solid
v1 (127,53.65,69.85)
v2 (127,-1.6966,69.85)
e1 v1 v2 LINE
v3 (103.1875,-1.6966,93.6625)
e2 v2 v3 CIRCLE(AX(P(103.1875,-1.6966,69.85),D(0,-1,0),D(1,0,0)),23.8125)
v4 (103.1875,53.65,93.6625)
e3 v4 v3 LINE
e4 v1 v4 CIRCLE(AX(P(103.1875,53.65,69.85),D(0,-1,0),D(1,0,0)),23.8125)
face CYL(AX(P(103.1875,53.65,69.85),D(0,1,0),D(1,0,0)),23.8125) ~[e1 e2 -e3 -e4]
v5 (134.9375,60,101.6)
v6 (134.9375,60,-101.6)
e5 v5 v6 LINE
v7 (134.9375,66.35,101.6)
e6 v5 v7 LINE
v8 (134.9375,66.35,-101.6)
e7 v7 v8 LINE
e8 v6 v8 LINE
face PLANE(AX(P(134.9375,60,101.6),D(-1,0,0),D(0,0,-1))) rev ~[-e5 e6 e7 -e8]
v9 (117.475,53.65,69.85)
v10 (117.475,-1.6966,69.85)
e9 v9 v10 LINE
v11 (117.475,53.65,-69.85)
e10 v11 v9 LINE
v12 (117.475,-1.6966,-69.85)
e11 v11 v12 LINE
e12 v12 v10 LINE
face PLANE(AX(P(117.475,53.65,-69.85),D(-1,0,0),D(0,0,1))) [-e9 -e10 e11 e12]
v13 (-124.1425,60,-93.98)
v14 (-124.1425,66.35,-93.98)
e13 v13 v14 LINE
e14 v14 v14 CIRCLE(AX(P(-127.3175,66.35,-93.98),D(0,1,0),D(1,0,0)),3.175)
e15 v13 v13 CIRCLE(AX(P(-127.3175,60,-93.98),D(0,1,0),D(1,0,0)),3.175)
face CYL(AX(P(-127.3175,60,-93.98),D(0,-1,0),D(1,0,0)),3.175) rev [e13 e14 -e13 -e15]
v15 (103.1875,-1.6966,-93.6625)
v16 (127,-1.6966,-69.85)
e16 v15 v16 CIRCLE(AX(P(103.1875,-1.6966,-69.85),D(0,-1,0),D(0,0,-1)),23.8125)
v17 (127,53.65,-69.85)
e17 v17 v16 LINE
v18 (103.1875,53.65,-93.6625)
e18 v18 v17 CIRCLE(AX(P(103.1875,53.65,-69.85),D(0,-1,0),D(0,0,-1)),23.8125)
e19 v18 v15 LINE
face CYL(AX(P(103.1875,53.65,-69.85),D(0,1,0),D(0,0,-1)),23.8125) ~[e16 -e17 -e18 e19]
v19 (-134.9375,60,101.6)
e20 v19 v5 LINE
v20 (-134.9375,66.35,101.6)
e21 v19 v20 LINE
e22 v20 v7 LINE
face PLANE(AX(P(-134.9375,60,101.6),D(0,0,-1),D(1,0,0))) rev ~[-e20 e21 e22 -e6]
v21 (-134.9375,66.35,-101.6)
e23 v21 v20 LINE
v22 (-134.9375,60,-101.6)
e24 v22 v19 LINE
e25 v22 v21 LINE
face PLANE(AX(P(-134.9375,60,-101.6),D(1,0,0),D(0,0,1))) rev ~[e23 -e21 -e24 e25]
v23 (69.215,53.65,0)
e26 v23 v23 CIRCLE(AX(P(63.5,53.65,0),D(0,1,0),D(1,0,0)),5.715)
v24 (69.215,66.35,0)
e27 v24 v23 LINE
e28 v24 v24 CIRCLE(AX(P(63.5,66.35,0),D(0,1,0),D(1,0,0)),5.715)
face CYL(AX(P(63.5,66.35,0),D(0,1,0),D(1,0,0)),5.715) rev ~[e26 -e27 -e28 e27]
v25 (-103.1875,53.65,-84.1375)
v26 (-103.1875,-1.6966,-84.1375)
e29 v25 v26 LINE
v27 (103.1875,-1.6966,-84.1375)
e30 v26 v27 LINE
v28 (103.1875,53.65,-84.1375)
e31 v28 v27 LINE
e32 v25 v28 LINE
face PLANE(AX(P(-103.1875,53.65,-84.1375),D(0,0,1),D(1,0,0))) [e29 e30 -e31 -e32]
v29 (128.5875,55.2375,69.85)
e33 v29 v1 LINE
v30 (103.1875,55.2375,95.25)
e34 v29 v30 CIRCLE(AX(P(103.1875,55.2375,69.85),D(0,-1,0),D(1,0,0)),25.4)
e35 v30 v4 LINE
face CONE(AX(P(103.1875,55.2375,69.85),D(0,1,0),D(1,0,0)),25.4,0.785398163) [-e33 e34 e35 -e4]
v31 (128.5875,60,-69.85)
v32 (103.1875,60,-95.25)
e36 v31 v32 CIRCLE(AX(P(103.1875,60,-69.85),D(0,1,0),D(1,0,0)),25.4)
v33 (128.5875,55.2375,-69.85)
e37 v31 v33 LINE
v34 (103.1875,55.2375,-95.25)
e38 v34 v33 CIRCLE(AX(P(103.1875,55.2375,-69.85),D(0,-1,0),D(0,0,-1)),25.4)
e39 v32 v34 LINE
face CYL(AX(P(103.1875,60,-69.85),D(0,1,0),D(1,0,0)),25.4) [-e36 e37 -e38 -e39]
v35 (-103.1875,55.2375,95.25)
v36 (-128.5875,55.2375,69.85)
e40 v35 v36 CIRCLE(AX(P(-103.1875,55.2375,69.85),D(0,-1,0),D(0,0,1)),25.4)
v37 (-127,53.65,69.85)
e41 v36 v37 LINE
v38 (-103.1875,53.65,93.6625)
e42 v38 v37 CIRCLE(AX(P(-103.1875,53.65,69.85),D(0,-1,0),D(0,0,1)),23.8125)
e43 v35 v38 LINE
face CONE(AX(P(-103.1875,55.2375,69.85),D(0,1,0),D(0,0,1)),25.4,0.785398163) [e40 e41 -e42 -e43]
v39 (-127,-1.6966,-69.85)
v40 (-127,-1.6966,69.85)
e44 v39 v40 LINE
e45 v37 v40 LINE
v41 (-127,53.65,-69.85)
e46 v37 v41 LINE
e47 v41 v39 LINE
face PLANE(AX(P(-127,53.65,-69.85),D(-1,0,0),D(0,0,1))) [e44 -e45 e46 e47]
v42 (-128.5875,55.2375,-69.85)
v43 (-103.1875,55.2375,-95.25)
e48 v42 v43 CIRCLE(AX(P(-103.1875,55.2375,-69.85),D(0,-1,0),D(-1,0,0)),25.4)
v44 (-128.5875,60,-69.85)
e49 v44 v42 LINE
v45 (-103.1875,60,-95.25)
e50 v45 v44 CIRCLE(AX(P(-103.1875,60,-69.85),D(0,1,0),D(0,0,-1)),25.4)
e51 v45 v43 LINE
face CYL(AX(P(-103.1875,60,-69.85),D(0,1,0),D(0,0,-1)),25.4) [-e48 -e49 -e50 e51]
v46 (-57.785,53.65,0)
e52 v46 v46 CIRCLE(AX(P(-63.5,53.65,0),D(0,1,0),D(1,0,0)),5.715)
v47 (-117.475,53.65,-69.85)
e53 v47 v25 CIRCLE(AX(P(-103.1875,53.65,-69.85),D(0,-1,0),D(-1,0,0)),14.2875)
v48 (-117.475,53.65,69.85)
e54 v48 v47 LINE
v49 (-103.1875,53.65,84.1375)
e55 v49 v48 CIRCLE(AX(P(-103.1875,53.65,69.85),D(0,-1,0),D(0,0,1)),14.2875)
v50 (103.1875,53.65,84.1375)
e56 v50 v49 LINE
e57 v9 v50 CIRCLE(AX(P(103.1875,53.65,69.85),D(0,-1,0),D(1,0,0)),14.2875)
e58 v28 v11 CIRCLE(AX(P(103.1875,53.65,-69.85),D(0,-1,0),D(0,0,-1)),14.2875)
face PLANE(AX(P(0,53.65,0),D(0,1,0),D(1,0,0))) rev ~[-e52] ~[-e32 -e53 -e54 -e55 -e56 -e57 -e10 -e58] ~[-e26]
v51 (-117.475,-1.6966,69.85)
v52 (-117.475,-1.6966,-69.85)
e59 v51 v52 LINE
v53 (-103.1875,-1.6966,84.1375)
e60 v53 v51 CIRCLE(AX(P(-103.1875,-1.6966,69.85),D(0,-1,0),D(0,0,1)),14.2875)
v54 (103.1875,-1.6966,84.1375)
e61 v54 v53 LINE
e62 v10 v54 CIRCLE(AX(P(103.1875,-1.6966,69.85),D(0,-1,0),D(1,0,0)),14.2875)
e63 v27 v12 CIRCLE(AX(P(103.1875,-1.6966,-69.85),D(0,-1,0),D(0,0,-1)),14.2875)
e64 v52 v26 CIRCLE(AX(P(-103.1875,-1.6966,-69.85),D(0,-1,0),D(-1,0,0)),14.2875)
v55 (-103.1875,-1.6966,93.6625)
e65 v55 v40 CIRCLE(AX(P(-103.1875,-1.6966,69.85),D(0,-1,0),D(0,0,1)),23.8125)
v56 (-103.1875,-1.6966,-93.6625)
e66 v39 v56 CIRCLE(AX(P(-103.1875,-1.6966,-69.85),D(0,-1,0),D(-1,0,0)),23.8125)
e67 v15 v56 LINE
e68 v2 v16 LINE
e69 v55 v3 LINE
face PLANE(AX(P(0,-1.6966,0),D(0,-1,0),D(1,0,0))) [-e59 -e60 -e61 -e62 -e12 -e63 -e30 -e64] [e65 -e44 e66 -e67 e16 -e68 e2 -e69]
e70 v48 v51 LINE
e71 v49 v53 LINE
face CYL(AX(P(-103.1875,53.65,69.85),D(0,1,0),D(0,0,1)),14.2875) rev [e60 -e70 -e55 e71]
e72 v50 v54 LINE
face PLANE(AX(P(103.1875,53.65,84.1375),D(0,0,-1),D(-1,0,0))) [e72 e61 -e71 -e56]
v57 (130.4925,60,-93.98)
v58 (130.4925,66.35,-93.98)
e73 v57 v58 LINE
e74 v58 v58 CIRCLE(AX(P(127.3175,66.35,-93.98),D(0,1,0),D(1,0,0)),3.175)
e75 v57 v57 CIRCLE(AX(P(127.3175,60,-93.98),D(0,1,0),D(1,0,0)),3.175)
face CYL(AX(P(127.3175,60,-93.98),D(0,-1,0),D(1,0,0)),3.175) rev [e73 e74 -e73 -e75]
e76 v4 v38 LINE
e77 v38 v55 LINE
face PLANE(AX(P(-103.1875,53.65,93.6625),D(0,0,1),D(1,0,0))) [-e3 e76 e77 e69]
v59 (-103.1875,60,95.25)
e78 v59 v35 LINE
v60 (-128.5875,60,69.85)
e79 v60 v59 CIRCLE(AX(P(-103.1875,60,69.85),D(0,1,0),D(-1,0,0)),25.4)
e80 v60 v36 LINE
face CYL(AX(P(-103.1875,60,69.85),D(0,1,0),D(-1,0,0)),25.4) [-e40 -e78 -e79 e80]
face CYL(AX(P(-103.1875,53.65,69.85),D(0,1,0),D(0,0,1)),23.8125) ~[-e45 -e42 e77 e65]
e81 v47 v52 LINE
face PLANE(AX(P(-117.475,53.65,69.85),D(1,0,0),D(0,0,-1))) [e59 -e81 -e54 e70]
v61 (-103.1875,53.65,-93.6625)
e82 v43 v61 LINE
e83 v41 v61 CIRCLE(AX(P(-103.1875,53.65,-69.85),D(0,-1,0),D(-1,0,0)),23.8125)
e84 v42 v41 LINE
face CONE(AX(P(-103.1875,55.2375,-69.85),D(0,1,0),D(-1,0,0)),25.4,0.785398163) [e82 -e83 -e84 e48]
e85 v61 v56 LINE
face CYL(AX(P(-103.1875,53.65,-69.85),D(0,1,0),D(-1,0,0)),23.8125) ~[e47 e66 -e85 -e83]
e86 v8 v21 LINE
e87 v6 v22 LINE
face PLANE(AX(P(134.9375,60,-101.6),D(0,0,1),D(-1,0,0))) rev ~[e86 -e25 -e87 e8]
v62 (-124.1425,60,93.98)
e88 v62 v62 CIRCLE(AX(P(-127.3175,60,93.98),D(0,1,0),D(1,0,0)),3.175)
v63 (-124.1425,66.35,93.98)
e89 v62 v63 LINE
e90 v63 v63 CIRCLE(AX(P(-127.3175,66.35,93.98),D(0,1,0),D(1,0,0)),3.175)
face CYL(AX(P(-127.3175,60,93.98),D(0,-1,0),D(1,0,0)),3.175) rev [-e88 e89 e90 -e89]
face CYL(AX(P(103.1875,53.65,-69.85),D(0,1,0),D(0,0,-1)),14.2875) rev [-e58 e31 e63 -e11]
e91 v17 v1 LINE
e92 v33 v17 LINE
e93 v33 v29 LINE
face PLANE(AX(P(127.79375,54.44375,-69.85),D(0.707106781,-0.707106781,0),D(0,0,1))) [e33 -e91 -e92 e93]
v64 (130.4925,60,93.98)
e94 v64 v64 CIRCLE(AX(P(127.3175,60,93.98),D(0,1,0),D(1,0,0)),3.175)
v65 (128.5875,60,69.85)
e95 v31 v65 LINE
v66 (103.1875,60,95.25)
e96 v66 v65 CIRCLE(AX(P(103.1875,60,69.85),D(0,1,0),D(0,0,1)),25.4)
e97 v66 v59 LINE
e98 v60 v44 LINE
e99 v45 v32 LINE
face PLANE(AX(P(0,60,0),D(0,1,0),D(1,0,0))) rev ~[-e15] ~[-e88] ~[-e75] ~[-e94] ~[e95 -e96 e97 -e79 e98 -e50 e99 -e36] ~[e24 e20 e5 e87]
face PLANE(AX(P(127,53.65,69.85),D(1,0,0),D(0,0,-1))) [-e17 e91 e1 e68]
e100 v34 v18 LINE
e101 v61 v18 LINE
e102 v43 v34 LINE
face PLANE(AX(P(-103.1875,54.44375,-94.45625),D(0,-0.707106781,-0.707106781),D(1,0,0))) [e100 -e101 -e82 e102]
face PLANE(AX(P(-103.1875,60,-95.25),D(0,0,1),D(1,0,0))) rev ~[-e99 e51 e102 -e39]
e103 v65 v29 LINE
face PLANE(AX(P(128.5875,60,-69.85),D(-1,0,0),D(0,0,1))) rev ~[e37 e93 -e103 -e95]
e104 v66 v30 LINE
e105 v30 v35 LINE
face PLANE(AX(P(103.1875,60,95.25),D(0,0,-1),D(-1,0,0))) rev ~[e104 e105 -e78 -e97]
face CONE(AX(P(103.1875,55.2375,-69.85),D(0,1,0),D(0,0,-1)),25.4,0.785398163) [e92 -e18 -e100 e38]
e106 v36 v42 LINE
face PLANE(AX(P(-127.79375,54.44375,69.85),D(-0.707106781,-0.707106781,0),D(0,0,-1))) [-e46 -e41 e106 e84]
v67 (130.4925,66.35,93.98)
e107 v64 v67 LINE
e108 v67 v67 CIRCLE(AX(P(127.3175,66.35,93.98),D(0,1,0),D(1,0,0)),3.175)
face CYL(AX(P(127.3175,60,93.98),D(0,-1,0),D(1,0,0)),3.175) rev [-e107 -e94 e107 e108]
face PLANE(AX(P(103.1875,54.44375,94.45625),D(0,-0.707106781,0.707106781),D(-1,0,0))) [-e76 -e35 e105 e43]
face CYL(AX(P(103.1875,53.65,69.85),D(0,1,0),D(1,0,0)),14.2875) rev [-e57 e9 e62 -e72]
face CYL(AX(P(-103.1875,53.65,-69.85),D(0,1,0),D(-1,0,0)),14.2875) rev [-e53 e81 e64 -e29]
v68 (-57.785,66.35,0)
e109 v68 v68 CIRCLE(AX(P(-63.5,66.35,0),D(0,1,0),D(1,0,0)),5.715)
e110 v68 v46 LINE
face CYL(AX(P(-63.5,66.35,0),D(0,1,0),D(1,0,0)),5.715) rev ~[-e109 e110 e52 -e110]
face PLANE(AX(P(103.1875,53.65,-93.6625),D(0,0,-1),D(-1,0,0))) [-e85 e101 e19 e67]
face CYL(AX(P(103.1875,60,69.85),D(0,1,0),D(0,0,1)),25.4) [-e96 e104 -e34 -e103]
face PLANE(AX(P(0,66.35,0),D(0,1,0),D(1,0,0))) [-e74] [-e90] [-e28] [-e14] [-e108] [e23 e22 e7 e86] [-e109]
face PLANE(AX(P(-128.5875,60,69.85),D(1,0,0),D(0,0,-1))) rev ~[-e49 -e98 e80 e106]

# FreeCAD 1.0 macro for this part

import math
import FreeCAD as App
import Part
import Sketcher
Q = App.Units.Quantity


def edges_at(feature, points):
    """Names of the edges that pass closest to the given points."""
    edges = feature.Shape.Edges
    near = lambda p: min(range(len(edges)), key=lambda i: edges[i].distToShape(Part.Vertex(*p))[0])
    return sorted({f"Edge{near(p) + 1}" for p in points})


def add_polygon(sketch, points):
    """Adds a closed chain of lines whose ends are joined by coincident constraints."""
    first, n = sketch.GeometryCount, len(points)
    for a, b in zip(points, points[1:] + points[:1]):
        sketch.addGeometry(Part.LineSegment(App.Vector(*a, 0), App.Vector(*b, 0)), False)
    for i in range(n):
        sketch.addConstraint(Sketcher.Constraint("Coincident", first + i, 2, first + (i + 1) % n, 1))

doc = App.newDocument("Part")
body = doc.addObject("PartDesign::Body", "Body")

sketch1 = body.newObject("Sketcher::SketchObject", "Sketch")
sketch1.AttachmentSupport = (doc.getObject("XZ_Plane"), [""])
sketch1.MapMode = "FlatFace"
add_polygon(sketch1, [(134.9375, -101.6), (-134.9375, -101.6), (-134.9375, 101.6), (134.9375, 101.6)])
add_polygon(sketch1, [(128.5875, -95.25), (128.5875, 95.25), (-128.5875, 95.25), (-128.5875, -95.25)])
sketch1.addConstraint([
    Sketcher.Constraint("Horizontal", 0),
    Sketcher.Constraint("Vertical", 1),
    Sketcher.Constraint("Horizontal", 2),
    Sketcher.Constraint("Vertical", 3),
    Sketcher.Constraint("Vertical", 4),
    Sketcher.Constraint("Horizontal", 5),
    Sketcher.Constraint("Vertical", 6),
    Sketcher.Constraint("Horizontal", 7),
    Sketcher.Constraint("Symmetric", 0, 2, 2, 2, -1, 1),
    Sketcher.Constraint("Symmetric", 4, 2, 6, 2, -1, 1),
    Sketcher.Constraint("DistanceY", 1, 1, 1, 2, Q("8 in")),
    Sketcher.Constraint("DistanceX", 4, 2, 2, 2, Q("0.25 in")),
    Sketcher.Constraint("DistanceY", 4, 2, 2, 2, Q("0.25 in")),
    Sketcher.Constraint("DistanceX", 0, 2, 0, 1, Q("10.625 in")),
])
pad1 = body.newObject("PartDesign::Pad", "Pad")
pad1.Profile = sketch1
pad1.Length = Q("2.3622047 in")
pad1.Reversed = True

sketch2 = body.newObject("Sketcher::SketchObject", "Sketch001")
sketch2.AttachmentSupport = (doc.getObject("XZ_Plane"), [""])
sketch2.MapMode = "FlatFace"
add_polygon(sketch2, [(134.9375, -101.6), (-134.9375, -101.6), (-134.9375, 101.6), (134.9375, 101.6)])
sketch2.addConstraint([
    Sketcher.Constraint("Horizontal", 0),
    Sketcher.Constraint("Vertical", 1),
    Sketcher.Constraint("Horizontal", 2),
    Sketcher.Constraint("Vertical", 3),
    Sketcher.Constraint("Symmetric", 0, 2, 2, 2, -1, 1),
    Sketcher.Constraint("DistanceY", 1, 1, 1, 2, Q("8 in")),
    Sketcher.Constraint("DistanceX", 0, 2, 0, 1, Q("10.625 in")),
])
pad2 = body.newObject("PartDesign::Pad", "Pad001")
pad2.Profile = sketch2
pad2.Length = Q("0.6 in")
doc.recompute()

fillet = body.newObject("PartDesign::Fillet", "Fillet")
fillet.Base = (pad2, edges_at(pad2, [
    (128.588, 30, 95.25),
    (-128.588, 30, 95.25),
    (-128.588, 30, -95.25),
    (128.588, 30, -95.25),
]))
fillet.Radius = Q("1 in")

sketch3 = body.newObject("Sketcher::SketchObject", "Sketch002")
sketch3.AttachmentSupport = (doc.getObject("XZ_Plane"), [""])
sketch3.MapMode = "FlatFace"
sketch3.addGeometry(Part.Circle(App.Vector(0, 0, 0), App.Vector(0, 0, 1), 5.715), False)
sketch3.addConstraint([
    Sketcher.Constraint("Coincident", 0, 3, -1, 1),
    Sketcher.Constraint("Diameter", 0, Q("0.45 in")),
])
pocket1 = body.newObject("PartDesign::Pocket", "Pocket")
pocket1.Profile = sketch3
pocket1.Type = "ThroughAll"
pocket1.Reversed = True

sketch4 = body.newObject("Sketcher::SketchObject", "Sketch003")
sketch4.AttachmentSupport = (doc.getObject("XZ_Plane"), [""])
sketch4.MapMode = "FlatFace"
sketch4.addGeometry([
    Part.LineSegment(App.Vector(-28.575, 88.9, 0), App.Vector(28.575, 88.9, 0)),
    Part.ArcOfCircle(Part.Circle(App.Vector(28.575, 0, 0), App.Vector(0, 0, 1), 88.9), math.radians(-90), math.radians(90)),
    Part.LineSegment(App.Vector(28.575, -88.9, 0), App.Vector(-28.575, -88.9, 0)),
    Part.ArcOfCircle(Part.Circle(App.Vector(-28.575, 0, 0), App.Vector(0, 0, 1), 88.9), math.radians(90), math.radians(270)),
    Part.LineSegment(App.Vector(-28.575, -76.2, 0), App.Vector(28.575, -76.2, 0)),
    Part.ArcOfCircle(Part.Circle(App.Vector(28.575, 0, 0), App.Vector(0, 0, 1), 76.2), math.radians(-90), math.radians(90)),
    Part.LineSegment(App.Vector(28.575, 76.2, 0), App.Vector(-28.575, 76.2, 0)),
    Part.ArcOfCircle(Part.Circle(App.Vector(-28.575, 0, 0), App.Vector(0, 0, 1), 76.2), math.radians(90), math.radians(270)),
    Part.LineSegment(App.Vector(28.575, -63.5, 0), App.Vector(-28.575, -63.5, 0)),
    Part.ArcOfCircle(Part.Circle(App.Vector(-28.575, 0, 0), App.Vector(0, 0, 1), 63.5), math.radians(90), math.radians(270)),
    Part.LineSegment(App.Vector(-28.575, 63.5, 0), App.Vector(28.575, 63.5, 0)),
    Part.ArcOfCircle(Part.Circle(App.Vector(28.575, 0, 0), App.Vector(0, 0, 1), 63.5), math.radians(-90), math.radians(90)),
    Part.LineSegment(App.Vector(-28.575, -50.8, 0), App.Vector(28.575, -50.8, 0)),
    Part.ArcOfCircle(Part.Circle(App.Vector(28.575, 0, 0), App.Vector(0, 0, 1), 50.8), math.radians(-90), math.radians(90)),
    Part.LineSegment(App.Vector(28.575, 50.8, 0), App.Vector(-28.575, 50.8, 0)),
    Part.ArcOfCircle(Part.Circle(App.Vector(-28.575, 0, 0), App.Vector(0, 0, 1), 50.8), math.radians(90), math.radians(270)),
    Part.LineSegment(App.Vector(28.575, -38.1, 0), App.Vector(-28.575, -38.1, 0)),
    Part.ArcOfCircle(Part.Circle(App.Vector(-28.575, 0, 0), App.Vector(0, 0, 1), 38.1), math.radians(90), math.radians(270)),
    Part.LineSegment(App.Vector(-28.575, 38.1, 0), App.Vector(28.575, 38.1, 0)),
    Part.ArcOfCircle(Part.Circle(App.Vector(28.575, 0, 0), App.Vector(0, 0, 1), 38.1), math.radians(-90), math.radians(90)),
    Part.LineSegment(App.Vector(-28.575, -25.4, 0), App.Vector(28.575, -25.4, 0)),
    Part.ArcOfCircle(Part.Circle(App.Vector(28.575, 0, 0), App.Vector(0, 0, 1), 25.4), math.radians(-90), math.radians(90)),
    Part.LineSegment(App.Vector(28.575, 25.4, 0), App.Vector(-28.575, 25.4, 0)),
    Part.ArcOfCircle(Part.Circle(App.Vector(-28.575, 0, 0), App.Vector(0, 0, 1), 25.4), math.radians(90), math.radians(270)),
    Part.LineSegment(App.Vector(28.575, -12.7, 0), App.Vector(-28.575, -12.7, 0)),
    Part.ArcOfCircle(Part.Circle(App.Vector(-28.575, 0, 0), App.Vector(0, 0, 1), 12.7), math.radians(90), math.radians(270)),
    Part.LineSegment(App.Vector(-28.575, 12.7, 0), App.Vector(28.575, 12.7, 0)),
    Part.ArcOfCircle(Part.Circle(App.Vector(28.575, 0, 0), App.Vector(0, 0, 1), 12.7), math.radians(-90), math.radians(90)),
    Part.Circle(App.Vector(0, 0, 0), App.Vector(0, 0, 1), 5.715),
], False)
sketch4.addConstraint([
    Sketcher.Constraint("Tangent", 0, 2, 1, 2),
    Sketcher.Constraint("Tangent", 1, 1, 2, 1),
    Sketcher.Constraint("Tangent", 2, 2, 3, 2),
    Sketcher.Constraint("Tangent", 3, 1, 0, 1),
    Sketcher.Constraint("Tangent", 4, 2, 5, 1),
    Sketcher.Constraint("Tangent", 5, 2, 6, 1),
    Sketcher.Constraint("Tangent", 6, 2, 7, 1),
    Sketcher.Constraint("Tangent", 7, 2, 4, 1),
    Sketcher.Constraint("Tangent", 8, 2, 9, 2),
    Sketcher.Constraint("Tangent", 9, 1, 10, 1),
    Sketcher.Constraint("Tangent", 10, 2, 11, 2),
    Sketcher.Constraint("Tangent", 11, 1, 8, 1),
    Sketcher.Constraint("Tangent", 12, 2, 13, 1),
    Sketcher.Constraint("Tangent", 13, 2, 14, 1),
    Sketcher.Constraint("Tangent", 14, 2, 15, 1),
    Sketcher.Constraint("Tangent", 15, 2, 12, 1),
    Sketcher.Constraint("Tangent", 16, 2, 17, 2),
    Sketcher.Constraint("Tangent", 17, 1, 18, 1),
    Sketcher.Constraint("Tangent", 18, 2, 19, 2),
    Sketcher.Constraint("Tangent", 19, 1, 16, 1),
    Sketcher.Constraint("Tangent", 20, 2, 21, 1),
    Sketcher.Constraint("Tangent", 21, 2, 22, 1),
    Sketcher.Constraint("Tangent", 22, 2, 23, 1),
    Sketcher.Constraint("Tangent", 23, 2, 20, 1),
    Sketcher.Constraint("Tangent", 24, 2, 25, 2),
    Sketcher.Constraint("Tangent", 25, 1, 26, 1),
    Sketcher.Constraint("Tangent", 26, 2, 27, 2),
    Sketcher.Constraint("Tangent", 27, 1, 24, 1),
    Sketcher.Constraint("Horizontal", 0),
    Sketcher.Constraint("Horizontal", 2),
    Sketcher.Constraint("Horizontal", 4),
    Sketcher.Constraint("Horizontal", 6),
    Sketcher.Constraint("Horizontal", 8),
    Sketcher.Constraint("Horizontal", 10),
    Sketcher.Constraint("Horizontal", 12),
    Sketcher.Constraint("Horizontal", 14),
    Sketcher.Constraint("Horizontal", 16),
    Sketcher.Constraint("Horizontal", 18),
    Sketcher.Constraint("Horizontal", 20),
    Sketcher.Constraint("Horizontal", 22),
    Sketcher.Constraint("Horizontal", 24),
    Sketcher.Constraint("Horizontal", 26),
    Sketcher.Constraint("Coincident", 28, 3, -1, 1),
    Sketcher.Constraint("Coincident", 5, 3, 1, 3),
    Sketcher.Constraint("Coincident", 9, 3, 3, 3),
    Sketcher.Constraint("Coincident", 13, 3, 1, 3),
    Sketcher.Constraint("Coincident", 17, 3, 3, 3),
    Sketcher.Constraint("Coincident", 21, 3, 1, 3),
    Sketcher.Constraint("Coincident", 25, 3, 3, 3),
    Sketcher.Constraint("Symmetric", 1, 3, 3, 3, -1, 1),
    Sketcher.Constraint("Vertical", 27, 3, 0, 2),
    Sketcher.Constraint("Vertical", 3, 1, 6, 2),
    Sketcher.Constraint("Vertical", 5, 2, 10, 2),
    Sketcher.Constraint("Vertical", 9, 1, 14, 2),
    Sketcher.Constraint("Vertical", 13, 2, 18, 2),
    Sketcher.Constraint("Vertical", 17, 1, 22, 2),
    Sketcher.Constraint("Radius", 1, Q("3.5 in")),
    Sketcher.Constraint("Radius", 25, Q("0.5 in")),
    Sketcher.Constraint("Diameter", 28, Q("0.45 in")),
    Sketcher.Constraint("Radius", 5, Q("3 in")),
    Sketcher.Constraint("Radius", 13, Q("2 in")),
    Sketcher.Constraint("Radius", 21, Q("1 in")),
    Sketcher.Constraint("DistanceX", 0, 1, 0, 2, Q("2.25 in")),
    Sketcher.Constraint("Radius", 9, Q("2.5 in")),
    Sketcher.Constraint("Radius", 17, Q("1.5 in")),
])
pocket2 = body.newObject("PartDesign::Pocket", "Pocket001")
pocket2.Profile = sketch4
pocket2.Length = Q("0.125 in")
pocket2.Reversed = True

sketch5 = body.newObject("Sketcher::SketchObject", "Sketch004")
sketch5.AttachmentSupport = (doc.getObject("XZ_Plane"), [""])
sketch5.MapMode = "FlatFace"
sketch5.addGeometry([
    Part.LineSegment(App.Vector(12.7, 23.933074, 0), App.Vector(96.0683, 80.367, 0)),
    Part.ArcOfCircle(Part.Circle(App.Vector(103.1875, 69.85, 0), App.Vector(0, 0, 1), 12.700012), math.radians(-55.905022), math.radians(124.094978)),
    Part.LineSegment(App.Vector(110.3067, 59.333, 0), App.Vector(22.655677, 0, 0)),
    Part.LineSegment(App.Vector(22.655677, 0, 0), App.Vector(110.3067, -59.333, 0)),
    Part.ArcOfCircle(Part.Circle(App.Vector(103.1875, -69.85, 0), App.Vector(0, 0, 1), 12.700012), math.radians(-124.094978), math.radians(55.905022)),
    Part.LineSegment(App.Vector(96.0683, -80.367, 0), App.Vector(12.7, -23.933074, 0)),
    Part.LineSegment(App.Vector(12.7, -23.933074, 0), App.Vector(12.7, -88.9, 0)),
    Part.LineSegment(App.Vector(12.7, -88.9, 0), App.Vector(-12.7, -88.9, 0)),
    Part.LineSegment(App.Vector(-12.7, -88.9, 0), App.Vector(-12.7, -23.933074, 0)),
    Part.LineSegment(App.Vector(-12.7, -23.933074, 0), App.Vector(-96.0683, -80.367, 0)),
    Part.ArcOfCircle(Part.Circle(App.Vector(-103.1875, -69.85, 0), App.Vector(0, 0, 1), 12.700012), math.radians(124.094978), math.radians(304.094978)),
    Part.LineSegment(App.Vector(-110.3067, -59.333, 0), App.Vector(-22.655677, 0, 0)),
    Part.LineSegment(App.Vector(-22.655677, 0, 0), App.Vector(-110.3067, 59.333, 0)),
    Part.ArcOfCircle(Part.Circle(App.Vector(-103.1875, 69.85, 0), App.Vector(0, 0, 1), 12.700012), math.radians(55.905022), math.radians(235.905022)),
    Part.LineSegment(App.Vector(-96.0683, 80.367, 0), App.Vector(-12.7, 23.933074, 0)),
    Part.LineSegment(App.Vector(-12.7, 23.933074, 0), App.Vector(-12.7, 88.9, 0)),
    Part.LineSegment(App.Vector(-12.7, 88.9, 0), App.Vector(12.7, 88.9, 0)),
    Part.LineSegment(App.Vector(12.7, 88.9, 0), App.Vector(12.7, 23.933074, 0)),
], False)
sketch5.addConstraint([
    Sketcher.Constraint("Tangent", 0, 2, 1, 2),
    Sketcher.Constraint("Tangent", 1, 1, 2, 1),
    Sketcher.Constraint("Coincident", 2, 2, 3, 1),
    Sketcher.Constraint("Tangent", 3, 2, 4, 2),
    Sketcher.Constraint("Tangent", 4, 1, 5, 1),
    Sketcher.Constraint("Coincident", 5, 2, 6, 1),
    Sketcher.Constraint("Coincident", 6, 2, 7, 1),
    Sketcher.Constraint("Coincident", 7, 2, 8, 1),
    Sketcher.Constraint("Coincident", 8, 2, 9, 1),
    Sketcher.Constraint("Tangent", 9, 2, 10, 2),
    Sketcher.Constraint("Tangent", 10, 1, 11, 1),
    Sketcher.Constraint("Coincident", 11, 2, 12, 1),
    Sketcher.Constraint("Tangent", 12, 2, 13, 2),
    Sketcher.Constraint("Tangent", 13, 1, 14, 1),
    Sketcher.Constraint("Coincident", 14, 2, 15, 1),
    Sketcher.Constraint("Coincident", 15, 2, 16, 1),
    Sketcher.Constraint("Coincident", 16, 2, 17, 1),
    Sketcher.Constraint("Coincident", 17, 2, 0, 1),
    Sketcher.Constraint("Vertical", 6),
    Sketcher.Constraint("Horizontal", 7),
    Sketcher.Constraint("Vertical", 8),
    Sketcher.Constraint("Vertical", 15),
    Sketcher.Constraint("Horizontal", 16),
    Sketcher.Constraint("Vertical", 17),
    Sketcher.Constraint("Equal", 1, 4),
    Sketcher.Constraint("Equal", 4, 10),
    Sketcher.Constraint("Equal", 10, 13),
    Sketcher.Constraint("Symmetric", 1, 3, 10, 3, -1, 1),
    Sketcher.Constraint("Symmetric", 4, 3, 13, 3, -1, 1),
    Sketcher.Constraint("Symmetric", 2, 2, 11, 2, -1, 1),
    Sketcher.Constraint("Symmetric", 5, 2, 14, 2, -1, 1),
    Sketcher.Constraint("Symmetric", 7, 2, 16, 2, -1, 1),
    Sketcher.Constraint("Symmetric", 4, 3, 10, 3, -2),
    Sketcher.Constraint("Symmetric", 5, 2, 8, 2, -2),
    Sketcher.Constraint("PointOnObject", 2, 2, -1),
    Sketcher.Constraint("Parallel", 0, 2),
    Sketcher.Constraint("Parallel", 3, 5),
    Sketcher.Constraint("Radius", 1, Q("0.5 in")),
    Sketcher.Constraint("DistanceX", 7, 2, 7, 1, Q("1 in")),
    Sketcher.Constraint("DistanceY", 6, 2, -1, 1, Q("3.5 in")),
    Sketcher.Constraint("DistanceY", 4, 3, 1, 3, Q("5.5 in")),
    Sketcher.Constraint("DistanceX", -1, 1, 1, 3, Q("4.0625 in")),
    Sketcher.Constraint("Distance", 0, Q("3.9635 in")),
])
pocket3 = body.newObject("PartDesign::Pocket", "Pocket002")
pocket3.Profile = sketch5
pocket3.Length = Q("0.125 in")
pocket3.Reversed = True

sketch6 = body.newObject("Sketcher::SketchObject", "Sketch005")
sketch6.AttachmentSupport = (doc.getObject("XZ_Plane"), [""])
sketch6.MapMode = "FlatFace"
add_polygon(sketch6, [(-14.8671, -25.4), (-12.7, -23.9331), (-12.7, -25.4)])
add_polygon(sketch6, [(12.7, -25.4), (12.7, -23.9331), (14.8671, -25.4)])
add_polygon(sketch6, [(14.8671, 25.4), (12.7, 23.9331), (12.7, 25.4)])
add_polygon(sketch6, [(-14.8671, 25.4), (-12.7, 25.4), (-12.7, 23.9331)])
sketch6.addConstraint([
    Sketcher.Constraint("Vertical", 1),
    Sketcher.Constraint("Horizontal", 2),
    Sketcher.Constraint("Vertical", 3),
    Sketcher.Constraint("Horizontal", 5),
    Sketcher.Constraint("Vertical", 7),
    Sketcher.Constraint("Horizontal", 8),
    Sketcher.Constraint("Horizontal", 9),
    Sketcher.Constraint("Vertical", 10),
    Sketcher.Constraint("Symmetric", 0, 2, 6, 2, -1, 1),
    Sketcher.Constraint("Symmetric", 2, 2, 8, 2, -1, 1),
    Sketcher.Constraint("Symmetric", 5, 2, 9, 2, -1, 1),
    Sketcher.Constraint("Symmetric", 0, 2, 3, 2, -2),
    Sketcher.Constraint("Symmetric", 2, 2, 4, 2, -2),
    Sketcher.Constraint("Parallel", 4, 11),
    Sketcher.Constraint("Horizontal", 6, 2, 10, 2),
    Sketcher.Constraint("DistanceY", 1, 2, -1, 1, Q("1 in")),
    Sketcher.Constraint("DistanceX", 0, 2, 3, 2, Q("1 in")),
    Sketcher.Constraint("DistanceX", 2, 2, 2, 1, Q("2.167 mm")),
    Sketcher.Constraint("DistanceY", 1, 2, 1, 1, Q("1.467 mm")),
])
pocket4 = body.newObject("PartDesign::Pocket", "Pocket003")
pocket4.Profile = sketch6
pocket4.Length = Q("0.125 in")
pocket4.Reversed = True

sketch7 = body.newObject("Sketcher::SketchObject", "Sketch006")
sketch7.AttachmentSupport = (doc.getObject("XZ_Plane"), [""])
sketch7.MapMode = "FlatFace"
sketch7.AttachmentOffset = App.Placement(App.Vector(0, 0, -2.3622047 * 25.4), App.Rotation())
add_polygon(sketch7, [(134.9375, -101.6), (-134.9375, -101.6), (-134.9375, 101.6), (134.9375, 101.6)])
sketch7.addConstraint([
    Sketcher.Constraint("Horizontal", 0),
    Sketcher.Constraint("Vertical", 1),
    Sketcher.Constraint("Horizontal", 2),
    Sketcher.Constraint("Vertical", 3),
    Sketcher.Constraint("Symmetric", 0, 2, 2, 2, -1, 1),
    Sketcher.Constraint("DistanceY", 1, 1, 1, 2, Q("8 in")),
    Sketcher.Constraint("DistanceX", 0, 2, 0, 1, Q("10.625 in")),
])
pocket5 = body.newObject("PartDesign::Pocket", "Pocket004")
pocket5.Profile = sketch7
pocket5.Type = "ThroughAll"
pocket5.Reversed = True

sketch8 = body.newObject("Sketcher::SketchObject", "Sketch007")
sketch8.AttachmentSupport = (doc.getObject("XZ_Plane"), [""])
sketch8.MapMode = "FlatFace"
sketch8.AttachmentOffset = App.Placement(App.Vector(0, 0, -2.3622047 * 25.4), App.Rotation())
add_polygon(sketch8, [(134.9375, -101.6), (-134.9375, -101.6), (-134.9375, 101.6), (134.9375, 101.6)])
sketch8.addGeometry(Part.Circle(App.Vector(-127.3175, 93.98, 0), App.Vector(0, 0, 1), 3.175), False)
sketch8.addGeometry(Part.Circle(App.Vector(127.3175, 93.98, 0), App.Vector(0, 0, 1), 3.175), False)
sketch8.addGeometry(Part.Circle(App.Vector(-127.3175, -93.98, 0), App.Vector(0, 0, 1), 3.175), False)
sketch8.addGeometry(Part.Circle(App.Vector(127.3175, -93.98, 0), App.Vector(0, 0, 1), 3.175), False)
sketch8.addConstraint([
    Sketcher.Constraint("Horizontal", 0),
    Sketcher.Constraint("Vertical", 1),
    Sketcher.Constraint("Horizontal", 2),
    Sketcher.Constraint("Vertical", 3),
    Sketcher.Constraint("Equal", 4, 5),
    Sketcher.Constraint("Equal", 5, 6),
    Sketcher.Constraint("Equal", 6, 7),
    Sketcher.Constraint("Symmetric", 5, 3, 6, 3, -1, 1),
    Sketcher.Constraint("Symmetric", 4, 3, 7, 3, -1, 1),
    Sketcher.Constraint("Symmetric", 0, 2, 2, 2, -1, 1),
    Sketcher.Constraint("Symmetric", 4, 3, 5, 3, -2),
    Sketcher.Constraint("Diameter", 4, Q("0.25 in")),
    Sketcher.Constraint("DistanceX", 0, 2, 6, 3, Q("0.3 in")),
    Sketcher.Constraint("DistanceY", 0, 2, 6, 3, Q("0.3 in")),
    Sketcher.Constraint("DistanceY", 1, 1, 1, 2, Q("8 in")),
    Sketcher.Constraint("DistanceX", 0, 2, 0, 1, Q("10.625 in")),
])
pad3 = body.newObject("PartDesign::Pad", "Pad002")
pad3.Profile = sketch8
pad3.Length = Q("0.25 in")
pad3.Reversed = True

sketch9 = body.newObject("Sketcher::SketchObject", "Sketch008")
sketch9.AttachmentSupport = (doc.getObject("XZ_Plane"), [""])
sketch9.MapMode = "FlatFace"
sketch9.AttachmentOffset = App.Placement(App.Vector(0, 0, -2.3622047 * 25.4), App.Rotation())
sketch9.addGeometry([
    Part.LineSegment(App.Vector(-128.5875, -69.85, 0), App.Vector(-128.5875, 69.85, 0)),
    Part.ArcOfCircle(Part.Circle(App.Vector(-103.1875, 69.85, 0), App.Vector(0, 0, 1), 25.4), math.radians(90), math.radians(180)),
    Part.LineSegment(App.Vector(-103.1875, 95.25, 0), App.Vector(103.1875, 95.25, 0)),
    Part.ArcOfCircle(Part.Circle(App.Vector(103.1875, 69.85, 0), App.Vector(0, 0, 1), 25.4), math.radians(0), math.radians(90)),
    Part.LineSegment(App.Vector(128.5875, 69.85, 0), App.Vector(128.5875, -69.85, 0)),
    Part.ArcOfCircle(Part.Circle(App.Vector(103.1875, -69.85, 0), App.Vector(0, 0, 1), 25.4), math.radians(-90), math.radians(0)),
    Part.LineSegment(App.Vector(103.1875, -95.25, 0), App.Vector(-103.1875, -95.25, 0)),
    Part.ArcOfCircle(Part.Circle(App.Vector(-103.1875, -69.85, 0), App.Vector(0, 0, 1), 25.4), math.radians(180), math.radians(270)),
], False)
sketch9.addConstraint([
    Sketcher.Constraint("Tangent", 0, 2, 1, 2),
    Sketcher.Constraint("Tangent", 1, 1, 2, 1),
    Sketcher.Constraint("Tangent", 2, 2, 3, 2),
    Sketcher.Constraint("Tangent", 3, 1, 4, 1),
    Sketcher.Constraint("Tangent", 4, 2, 5, 2),
    Sketcher.Constraint("Tangent", 5, 1, 6, 1),
    Sketcher.Constraint("Tangent", 6, 2, 7, 2),
    Sketcher.Constraint("Tangent", 7, 1, 0, 1),
    Sketcher.Constraint("Vertical", 0),
    Sketcher.Constraint("Horizontal", 2),
    Sketcher.Constraint("Vertical", 4),
    Sketcher.Constraint("Horizontal", 6),
    Sketcher.Constraint("Equal", 1, 3),
    Sketcher.Constraint("Equal", 3, 5),
    Sketcher.Constraint("Equal", 5, 7),
    Sketcher.Constraint("Symmetric", 1, 3, 5, 3, -1, 1),
    Sketcher.Constraint("Radius", 1, Q("1 in")),
    Sketcher.Constraint("DistanceY", 0, 1, 0, 2, Q("5.5 in")),
    Sketcher.Constraint("DistanceX", 2, 1, 2, 2, Q("8.125 in")),
])
pad4 = body.newObject("PartDesign::Pad", "Pad003")
pad4.Profile = sketch9
pad4.Length = Q("0.25 in")

sketch10 = body.newObject("Sketcher::SketchObject", "Sketch009")
sketch10.AttachmentSupport = (doc.getObject("XZ_Plane"), [""])
sketch10.MapMode = "FlatFace"
sketch10.AttachmentOffset = App.Placement(App.Vector(0, 0, -2.6122047 * 25.4), App.Rotation())
sketch10.addGeometry([
    Part.Circle(App.Vector(-63.5, 0, 0), App.Vector(0, 0, 1), 5.715),
    Part.Circle(App.Vector(63.5, 0, 0), App.Vector(0, 0, 1), 5.715),
], False)
sketch10.addConstraint([
    Sketcher.Constraint("Equal", 0, 1),
    Sketcher.Constraint("Symmetric", 0, 3, 1, 3, -1, 1),
    Sketcher.Constraint("PointOnObject", 0, 3, -1),
    Sketcher.Constraint("Diameter", 0, Q("0.45 in")),
    Sketcher.Constraint("DistanceX", 0, 3, -1, 1, Q("2.5 in")),
])
pocket6 = body.newObject("PartDesign::Pocket", "Pocket005")
pocket6.Profile = sketch10
pocket6.Type = "ThroughAll"
pocket6.Reversed = True
doc.recompute()

chamfer = body.newObject("PartDesign::Chamfer", "Chamfer")
chamfer.Base = (pocket6, edges_at(pocket6, [
    (0, 53.65, -95.25),
    (121.148, 53.65, -87.811),
    (128.588, 53.65, 0),
    (121.148, 53.65, 87.811),
    (0, 53.65, 95.25),
    (-121.148, 53.65, 87.811),
    (-128.588, 53.65, 0),
    (-121.148, 53.65, -87.811),
]))
chamfer.Size = Q("0.0625 in")

sketch11 = body.newObject("Sketcher::SketchObject", "Sketch010")
sketch11.AttachmentSupport = (doc.getObject("XZ_Plane"), [""])
sketch11.MapMode = "FlatFace"
sketch11.AttachmentOffset = App.Placement(App.Vector(0, 0, -2.1122047 * 25.4), App.Rotation())
sketch11.addGeometry([
    Part.LineSegment(App.Vector(-103.1875, -93.6625, 0), App.Vector(103.1875, -93.6625, 0)),
    Part.ArcOfCircle(Part.Circle(App.Vector(103.1875, -69.85, 0), App.Vector(0, 0, 1), 23.8125), math.radians(-90), math.radians(0)),
    Part.LineSegment(App.Vector(127, -69.85, 0), App.Vector(127, 69.85, 0)),
    Part.ArcOfCircle(Part.Circle(App.Vector(103.1875, 69.85, 0), App.Vector(0, 0, 1), 23.8125), math.radians(0), math.radians(90)),
    Part.LineSegment(App.Vector(103.1875, 93.6625, 0), App.Vector(-103.1875, 93.6625, 0)),
    Part.ArcOfCircle(Part.Circle(App.Vector(-103.1875, 69.85, 0), App.Vector(0, 0, 1), 23.8125), math.radians(90), math.radians(180)),
    Part.LineSegment(App.Vector(-127, 69.85, 0), App.Vector(-127, -69.85, 0)),
    Part.ArcOfCircle(Part.Circle(App.Vector(-103.1875, -69.85, 0), App.Vector(0, 0, 1), 23.8125), math.radians(180), math.radians(270)),
    Part.LineSegment(App.Vector(103.1875, -84.1375, 0), App.Vector(-103.1875, -84.1375, 0)),
    Part.ArcOfCircle(Part.Circle(App.Vector(-103.1875, -69.85, 0), App.Vector(0, 0, 1), 14.2875), math.radians(180), math.radians(270)),
    Part.LineSegment(App.Vector(-117.475, -69.85, 0), App.Vector(-117.475, 69.85, 0)),
    Part.ArcOfCircle(Part.Circle(App.Vector(-103.1875, 69.85, 0), App.Vector(0, 0, 1), 14.2875), math.radians(90), math.radians(180)),
    Part.LineSegment(App.Vector(-103.1875, 84.1375, 0), App.Vector(103.1875, 84.1375, 0)),
    Part.ArcOfCircle(Part.Circle(App.Vector(103.1875, 69.85, 0), App.Vector(0, 0, 1), 14.2875), math.radians(0), math.radians(90)),
    Part.LineSegment(App.Vector(117.475, 69.85, 0), App.Vector(117.475, -69.85, 0)),
    Part.ArcOfCircle(Part.Circle(App.Vector(103.1875, -69.85, 0), App.Vector(0, 0, 1), 14.2875), math.radians(-90), math.radians(0)),
], False)
sketch11.addConstraint([
    Sketcher.Constraint("Tangent", 0, 2, 1, 1),
    Sketcher.Constraint("Tangent", 1, 2, 2, 1),
    Sketcher.Constraint("Tangent", 2, 2, 3, 1),
    Sketcher.Constraint("Tangent", 3, 2, 4, 1),
    Sketcher.Constraint("Tangent", 4, 2, 5, 1),
    Sketcher.Constraint("Tangent", 5, 2, 6, 1),
    Sketcher.Constraint("Tangent", 6, 2, 7, 1),
    Sketcher.Constraint("Tangent", 7, 2, 0, 1),
    Sketcher.Constraint("Tangent", 8, 2, 9, 2),
    Sketcher.Constraint("Tangent", 9, 1, 10, 1),
    Sketcher.Constraint("Tangent", 10, 2, 11, 2),
    Sketcher.Constraint("Tangent", 11, 1, 12, 1),
    Sketcher.Constraint("Tangent", 12, 2, 13, 2),
    Sketcher.Constraint("Tangent", 13, 1, 14, 1),
    Sketcher.Constraint("Tangent", 14, 2, 15, 2),
    Sketcher.Constraint("Tangent", 15, 1, 8, 1),
    Sketcher.Constraint("Horizontal", 0),
    Sketcher.Constraint("Vertical", 2),
    Sketcher.Constraint("Horizontal", 4),
    Sketcher.Constraint("Vertical", 6),
    Sketcher.Constraint("Horizontal", 8),
    Sketcher.Constraint("Vertical", 10),
    Sketcher.Constraint("Horizontal", 12),
    Sketcher.Constraint("Vertical", 14),
    Sketcher.Constraint("Coincident", 9, 3, 7, 3),
    Sketcher.Constraint("Coincident", 11, 3, 5, 3),
    Sketcher.Constraint("Coincident", 13, 3, 3, 3),
    Sketcher.Constraint("Equal", 1, 3),
    Sketcher.Constraint("Equal", 3, 5),
    Sketcher.Constraint("Equal", 5, 7),
    Sketcher.Constraint("Equal", 13, 15),
    Sketcher.Constraint("Symmetric", 1, 3, 5, 3, -1, 1),
    Sketcher.Constraint("DistanceY", 2, 1, 2, 2, Q("5.5 in")),
    Sketcher.Constraint("DistanceX", -1, 1, 1, 2, Q("5 in")),
    Sketcher.Constraint("Radius", 1, Q("0.9375 in")),
    Sketcher.Constraint("Radius", 9, Q("0.5625 in")),
])
pad5 = body.newObject("PartDesign::Pad", "Pad004")
pad5.Profile = sketch11
pad5.Length = Q("2.179 in")

doc.recompute()
